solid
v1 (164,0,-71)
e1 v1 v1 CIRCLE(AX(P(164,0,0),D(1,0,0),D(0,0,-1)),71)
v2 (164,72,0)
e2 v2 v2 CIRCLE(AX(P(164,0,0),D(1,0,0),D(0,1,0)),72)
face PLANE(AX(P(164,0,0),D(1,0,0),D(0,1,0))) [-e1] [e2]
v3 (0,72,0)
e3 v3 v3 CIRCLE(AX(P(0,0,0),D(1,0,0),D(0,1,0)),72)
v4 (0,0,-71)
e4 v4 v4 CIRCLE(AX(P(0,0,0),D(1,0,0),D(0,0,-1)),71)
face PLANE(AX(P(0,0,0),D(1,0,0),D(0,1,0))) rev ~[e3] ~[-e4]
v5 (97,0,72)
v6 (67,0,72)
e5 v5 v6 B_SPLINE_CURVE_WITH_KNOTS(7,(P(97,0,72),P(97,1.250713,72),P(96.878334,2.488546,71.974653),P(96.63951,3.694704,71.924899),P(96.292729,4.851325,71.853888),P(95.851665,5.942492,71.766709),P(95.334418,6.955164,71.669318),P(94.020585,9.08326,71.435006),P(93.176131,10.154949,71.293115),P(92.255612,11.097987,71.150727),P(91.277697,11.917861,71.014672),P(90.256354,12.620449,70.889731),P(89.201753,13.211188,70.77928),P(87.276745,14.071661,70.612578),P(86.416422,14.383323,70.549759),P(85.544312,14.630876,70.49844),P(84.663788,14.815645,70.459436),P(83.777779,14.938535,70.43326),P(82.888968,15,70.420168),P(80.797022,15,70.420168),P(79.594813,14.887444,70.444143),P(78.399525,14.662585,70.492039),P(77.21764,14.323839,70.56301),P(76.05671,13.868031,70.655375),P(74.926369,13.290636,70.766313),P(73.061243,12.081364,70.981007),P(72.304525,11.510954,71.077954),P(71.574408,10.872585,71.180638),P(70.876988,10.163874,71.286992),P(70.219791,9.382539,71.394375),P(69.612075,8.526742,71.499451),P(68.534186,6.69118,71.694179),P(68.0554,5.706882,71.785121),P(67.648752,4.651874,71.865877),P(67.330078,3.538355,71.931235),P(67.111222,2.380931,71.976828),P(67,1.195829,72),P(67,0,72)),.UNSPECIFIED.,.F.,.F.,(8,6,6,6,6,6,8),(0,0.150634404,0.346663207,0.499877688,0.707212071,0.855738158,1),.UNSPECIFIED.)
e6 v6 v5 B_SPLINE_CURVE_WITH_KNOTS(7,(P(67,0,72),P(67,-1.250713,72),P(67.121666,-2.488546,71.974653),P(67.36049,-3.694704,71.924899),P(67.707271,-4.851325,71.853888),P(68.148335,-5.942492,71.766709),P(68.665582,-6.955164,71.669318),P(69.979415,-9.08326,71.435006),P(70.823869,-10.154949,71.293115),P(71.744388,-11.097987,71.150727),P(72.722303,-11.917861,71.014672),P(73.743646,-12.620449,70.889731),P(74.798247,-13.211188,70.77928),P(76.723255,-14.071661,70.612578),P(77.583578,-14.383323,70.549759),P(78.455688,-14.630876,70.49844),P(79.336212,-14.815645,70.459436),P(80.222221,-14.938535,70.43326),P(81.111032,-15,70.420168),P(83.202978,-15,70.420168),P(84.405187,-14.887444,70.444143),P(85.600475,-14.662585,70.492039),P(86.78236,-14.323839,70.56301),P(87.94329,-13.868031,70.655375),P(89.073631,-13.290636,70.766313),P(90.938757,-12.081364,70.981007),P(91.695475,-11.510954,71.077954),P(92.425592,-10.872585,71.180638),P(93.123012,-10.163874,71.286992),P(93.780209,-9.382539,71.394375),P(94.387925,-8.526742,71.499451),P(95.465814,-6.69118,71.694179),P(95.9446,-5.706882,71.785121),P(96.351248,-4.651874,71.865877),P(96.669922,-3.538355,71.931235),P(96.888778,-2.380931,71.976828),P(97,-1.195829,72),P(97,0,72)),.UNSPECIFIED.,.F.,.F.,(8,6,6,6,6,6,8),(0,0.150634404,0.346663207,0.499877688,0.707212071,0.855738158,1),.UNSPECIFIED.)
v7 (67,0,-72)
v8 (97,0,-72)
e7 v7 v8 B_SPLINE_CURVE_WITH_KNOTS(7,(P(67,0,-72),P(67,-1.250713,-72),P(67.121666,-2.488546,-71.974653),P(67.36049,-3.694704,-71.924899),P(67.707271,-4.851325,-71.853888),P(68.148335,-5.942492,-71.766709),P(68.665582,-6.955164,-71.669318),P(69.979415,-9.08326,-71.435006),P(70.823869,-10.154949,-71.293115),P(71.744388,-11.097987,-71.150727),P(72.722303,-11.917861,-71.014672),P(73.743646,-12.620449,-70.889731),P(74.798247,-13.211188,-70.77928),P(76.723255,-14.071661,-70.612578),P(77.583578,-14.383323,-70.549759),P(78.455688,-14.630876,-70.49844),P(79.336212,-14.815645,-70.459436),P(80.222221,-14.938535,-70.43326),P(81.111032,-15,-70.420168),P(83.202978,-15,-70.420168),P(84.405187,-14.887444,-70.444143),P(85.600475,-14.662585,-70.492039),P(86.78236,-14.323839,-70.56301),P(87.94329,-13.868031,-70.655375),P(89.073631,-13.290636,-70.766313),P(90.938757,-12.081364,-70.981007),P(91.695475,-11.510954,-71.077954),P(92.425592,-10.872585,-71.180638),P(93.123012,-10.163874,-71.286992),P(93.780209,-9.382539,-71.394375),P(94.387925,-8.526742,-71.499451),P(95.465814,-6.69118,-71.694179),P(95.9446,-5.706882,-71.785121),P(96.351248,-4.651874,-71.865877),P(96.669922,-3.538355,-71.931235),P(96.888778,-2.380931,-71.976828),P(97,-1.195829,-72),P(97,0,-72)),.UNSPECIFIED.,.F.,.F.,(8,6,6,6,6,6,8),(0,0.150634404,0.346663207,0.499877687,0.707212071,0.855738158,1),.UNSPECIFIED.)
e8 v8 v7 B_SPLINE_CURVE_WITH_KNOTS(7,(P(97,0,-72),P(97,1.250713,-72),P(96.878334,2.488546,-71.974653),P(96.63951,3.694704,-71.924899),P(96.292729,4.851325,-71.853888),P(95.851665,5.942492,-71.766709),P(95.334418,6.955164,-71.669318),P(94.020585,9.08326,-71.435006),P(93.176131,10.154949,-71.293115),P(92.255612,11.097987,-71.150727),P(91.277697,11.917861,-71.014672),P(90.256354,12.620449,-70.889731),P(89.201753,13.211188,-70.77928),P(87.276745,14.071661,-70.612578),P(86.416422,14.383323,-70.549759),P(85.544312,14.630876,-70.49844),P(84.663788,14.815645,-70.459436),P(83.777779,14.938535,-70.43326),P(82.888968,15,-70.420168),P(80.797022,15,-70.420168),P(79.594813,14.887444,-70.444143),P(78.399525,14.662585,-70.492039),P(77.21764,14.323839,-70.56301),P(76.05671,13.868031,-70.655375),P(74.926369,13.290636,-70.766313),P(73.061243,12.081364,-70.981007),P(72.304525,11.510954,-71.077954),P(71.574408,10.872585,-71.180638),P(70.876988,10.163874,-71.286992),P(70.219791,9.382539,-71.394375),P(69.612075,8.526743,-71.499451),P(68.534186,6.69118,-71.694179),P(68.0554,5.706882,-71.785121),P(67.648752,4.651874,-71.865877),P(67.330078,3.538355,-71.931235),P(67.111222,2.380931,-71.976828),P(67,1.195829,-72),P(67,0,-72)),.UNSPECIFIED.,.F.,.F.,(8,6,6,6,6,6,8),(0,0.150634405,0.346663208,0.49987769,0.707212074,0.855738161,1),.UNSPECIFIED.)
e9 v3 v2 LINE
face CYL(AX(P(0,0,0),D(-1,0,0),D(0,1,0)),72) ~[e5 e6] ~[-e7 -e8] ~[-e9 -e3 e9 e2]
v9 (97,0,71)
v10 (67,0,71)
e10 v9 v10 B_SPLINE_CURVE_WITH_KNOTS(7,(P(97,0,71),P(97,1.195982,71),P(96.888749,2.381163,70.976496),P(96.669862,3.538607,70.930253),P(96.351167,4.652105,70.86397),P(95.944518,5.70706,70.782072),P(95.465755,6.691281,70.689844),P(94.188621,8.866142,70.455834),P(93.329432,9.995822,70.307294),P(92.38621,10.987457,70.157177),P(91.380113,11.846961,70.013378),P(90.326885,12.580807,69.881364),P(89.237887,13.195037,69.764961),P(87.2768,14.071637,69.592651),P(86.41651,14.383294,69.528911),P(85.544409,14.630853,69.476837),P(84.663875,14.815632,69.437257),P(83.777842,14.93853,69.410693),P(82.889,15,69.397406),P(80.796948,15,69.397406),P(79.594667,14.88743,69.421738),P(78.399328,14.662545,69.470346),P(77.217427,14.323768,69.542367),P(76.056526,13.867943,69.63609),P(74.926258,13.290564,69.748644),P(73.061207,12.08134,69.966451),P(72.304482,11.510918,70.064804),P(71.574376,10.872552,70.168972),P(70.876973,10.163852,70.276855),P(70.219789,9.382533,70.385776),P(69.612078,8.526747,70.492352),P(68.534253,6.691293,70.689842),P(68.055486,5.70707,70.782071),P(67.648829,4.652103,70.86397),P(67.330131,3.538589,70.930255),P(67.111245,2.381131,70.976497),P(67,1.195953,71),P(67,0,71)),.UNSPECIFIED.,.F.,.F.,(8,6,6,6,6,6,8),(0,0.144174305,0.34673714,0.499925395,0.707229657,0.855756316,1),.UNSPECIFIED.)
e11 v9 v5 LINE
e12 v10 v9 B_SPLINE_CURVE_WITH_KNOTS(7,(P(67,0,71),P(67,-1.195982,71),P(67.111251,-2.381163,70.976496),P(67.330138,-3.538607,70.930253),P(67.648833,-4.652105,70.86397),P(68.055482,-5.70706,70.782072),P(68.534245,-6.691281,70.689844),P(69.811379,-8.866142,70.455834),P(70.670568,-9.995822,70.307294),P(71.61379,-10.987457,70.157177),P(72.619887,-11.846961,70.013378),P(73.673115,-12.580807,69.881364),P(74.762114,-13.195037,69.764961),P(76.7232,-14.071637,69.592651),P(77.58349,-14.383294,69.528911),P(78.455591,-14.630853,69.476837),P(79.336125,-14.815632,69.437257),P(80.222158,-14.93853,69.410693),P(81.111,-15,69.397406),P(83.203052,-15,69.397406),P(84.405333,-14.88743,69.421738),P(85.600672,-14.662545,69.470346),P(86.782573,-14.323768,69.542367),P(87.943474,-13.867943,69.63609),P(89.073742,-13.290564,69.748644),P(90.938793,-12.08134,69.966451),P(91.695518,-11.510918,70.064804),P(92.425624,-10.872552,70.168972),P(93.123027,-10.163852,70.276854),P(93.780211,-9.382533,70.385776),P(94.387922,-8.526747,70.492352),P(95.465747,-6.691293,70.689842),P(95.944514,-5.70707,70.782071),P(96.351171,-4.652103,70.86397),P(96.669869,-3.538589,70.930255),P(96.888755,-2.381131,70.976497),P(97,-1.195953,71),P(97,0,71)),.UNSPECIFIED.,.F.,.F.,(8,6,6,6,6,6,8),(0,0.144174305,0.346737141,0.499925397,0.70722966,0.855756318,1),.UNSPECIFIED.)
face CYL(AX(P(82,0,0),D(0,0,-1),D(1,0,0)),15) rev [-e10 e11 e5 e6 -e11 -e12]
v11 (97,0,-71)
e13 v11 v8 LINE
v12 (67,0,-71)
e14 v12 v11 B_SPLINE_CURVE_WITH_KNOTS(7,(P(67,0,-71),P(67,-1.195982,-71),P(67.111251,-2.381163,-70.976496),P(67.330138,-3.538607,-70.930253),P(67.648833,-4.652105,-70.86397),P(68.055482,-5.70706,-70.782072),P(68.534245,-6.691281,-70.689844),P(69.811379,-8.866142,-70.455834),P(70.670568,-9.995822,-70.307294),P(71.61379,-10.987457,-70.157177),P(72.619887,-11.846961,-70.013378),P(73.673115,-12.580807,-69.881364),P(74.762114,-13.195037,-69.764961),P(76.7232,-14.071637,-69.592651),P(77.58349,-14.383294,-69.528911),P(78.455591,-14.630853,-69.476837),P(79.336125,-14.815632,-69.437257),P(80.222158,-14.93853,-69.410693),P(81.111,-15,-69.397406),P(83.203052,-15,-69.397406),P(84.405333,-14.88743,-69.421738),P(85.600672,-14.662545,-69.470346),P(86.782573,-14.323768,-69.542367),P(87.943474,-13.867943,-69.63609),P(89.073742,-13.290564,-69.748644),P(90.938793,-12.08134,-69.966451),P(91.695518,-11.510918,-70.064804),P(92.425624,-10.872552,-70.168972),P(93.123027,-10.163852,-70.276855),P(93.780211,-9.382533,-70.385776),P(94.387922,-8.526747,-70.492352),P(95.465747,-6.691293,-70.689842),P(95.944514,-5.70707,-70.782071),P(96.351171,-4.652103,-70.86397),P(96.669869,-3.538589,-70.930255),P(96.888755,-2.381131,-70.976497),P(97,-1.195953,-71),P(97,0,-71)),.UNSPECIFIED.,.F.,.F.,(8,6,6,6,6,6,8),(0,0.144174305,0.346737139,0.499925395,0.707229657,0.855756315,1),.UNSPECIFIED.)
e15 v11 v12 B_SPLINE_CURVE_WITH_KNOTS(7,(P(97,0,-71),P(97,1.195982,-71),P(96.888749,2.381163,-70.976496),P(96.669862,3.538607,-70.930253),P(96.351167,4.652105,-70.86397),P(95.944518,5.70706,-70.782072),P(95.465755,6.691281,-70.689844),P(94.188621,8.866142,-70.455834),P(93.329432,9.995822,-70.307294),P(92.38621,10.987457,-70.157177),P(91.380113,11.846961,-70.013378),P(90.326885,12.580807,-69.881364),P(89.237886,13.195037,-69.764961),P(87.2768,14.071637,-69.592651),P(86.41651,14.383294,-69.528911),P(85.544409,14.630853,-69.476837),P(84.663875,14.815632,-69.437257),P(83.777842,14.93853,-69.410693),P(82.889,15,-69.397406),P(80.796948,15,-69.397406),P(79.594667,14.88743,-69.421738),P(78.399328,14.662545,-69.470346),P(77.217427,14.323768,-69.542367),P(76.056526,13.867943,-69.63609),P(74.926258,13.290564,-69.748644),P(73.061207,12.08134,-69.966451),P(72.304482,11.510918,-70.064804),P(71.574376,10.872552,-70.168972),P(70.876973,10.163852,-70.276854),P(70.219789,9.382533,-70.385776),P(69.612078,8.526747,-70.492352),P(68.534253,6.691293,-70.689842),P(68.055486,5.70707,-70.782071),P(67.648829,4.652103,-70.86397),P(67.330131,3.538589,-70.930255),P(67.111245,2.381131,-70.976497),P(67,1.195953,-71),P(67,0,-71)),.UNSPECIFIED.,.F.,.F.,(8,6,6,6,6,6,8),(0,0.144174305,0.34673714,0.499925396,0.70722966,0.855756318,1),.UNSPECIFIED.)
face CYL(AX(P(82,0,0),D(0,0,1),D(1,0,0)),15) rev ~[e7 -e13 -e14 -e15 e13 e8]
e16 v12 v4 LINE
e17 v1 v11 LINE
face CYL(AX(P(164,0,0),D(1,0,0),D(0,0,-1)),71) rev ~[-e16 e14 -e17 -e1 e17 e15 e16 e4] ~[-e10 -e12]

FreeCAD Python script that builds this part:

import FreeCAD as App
import Part
import Sketcher
Q = App.Units.Quantity

doc = App.newDocument("Part")
params = doc.addObject("Spreadsheet::Sheet", "Params")
for row, (alias, value) in enumerate([
    ("sketch1_diameter", "144 mm"),
    ("pad1_length", "164 mm"),
    ("sketch2_diameter", "142 mm"),
    ("pocket1_length", "300 mm"),
    ("sketch3_diameter", "30 mm"),
    ("pocket2_length", "164 mm"),
], start=1):
    params.set(f"A{row}", alias)
    params.set(f"B{row}", "=" + value)
    params.setAlias(f"B{row}", alias)

body = doc.addObject("PartDesign::Body", "Body")

# Sketch on YZ plane
sketch1 = body.newObject("Sketcher::SketchObject", "Sketch")
sketch1.AttachmentSupport = (doc.getObject("YZ_Plane"), [""])
sketch1.MapMode = "FlatFace"
sketch1.addGeometry(Part.Circle(App.Vector(0, 0, 0), App.Vector(0, 0, 1), 72), False)
sketch1.addConstraint([
    Sketcher.Constraint("Coincident", 0, 3, -1, 1),
    Sketcher.Constraint("Diameter", 0, Q("144 mm")),
])
sketch1.setExpression("Constraints[1]", "Params.sketch1_diameter")
pad1 = body.newObject("PartDesign::Pad", "Pad")
pad1.Profile = sketch1
pad1.setExpression("Length", "Params.pad1_length")

# Sketch on YZ plane
sketch2 = body.newObject("Sketcher::SketchObject", "Sketch001")
sketch2.AttachmentSupport = (doc.getObject("YZ_Plane"), [""])
sketch2.MapMode = "FlatFace"
sketch2.AttachmentOffset = App.Placement(App.Vector(0, 0, 164), App.Rotation())
sketch2.addGeometry(Part.Circle(App.Vector(0, 0, 0), App.Vector(0, 0, 1), 71), False)
sketch2.addConstraint([
    Sketcher.Constraint("Coincident", 0, 3, -1, 1),
    Sketcher.Constraint("Diameter", 0, Q("142 mm")),
])
sketch2.setExpression("Constraints[1]", "Params.sketch2_diameter")
pocket1 = body.newObject("PartDesign::Pocket", "Pocket")
pocket1.Profile = sketch2
pocket1.setExpression("Length", "Params.pocket1_length")

# Sketch on XY plane
sketch3 = body.newObject("Sketcher::SketchObject", "Sketch002")
sketch3.AttachmentSupport = (doc.getObject("XY_Plane"), [""])
sketch3.MapMode = "FlatFace"
sketch3.addGeometry(Part.Circle(App.Vector(82, 0, 0), App.Vector(0, 0, 1), 15), False)
sketch3.addConstraint([
    Sketcher.Constraint("PointOnObject", 0, 3, -1),
    Sketcher.Constraint("Diameter", 0, Q("30 mm")),
    Sketcher.Constraint("DistanceX", -1, 1, 0, 3, Q("82 mm")),
])
sketch3.setExpression("Constraints[1]", "Params.sketch3_diameter")
pocket2 = body.newObject("PartDesign::Pocket", "Pocket001")
pocket2.Profile = sketch3
pocket2.setExpression("Length", "Params.pocket2_length")
pocket2.Midplane = True

doc.recompute()
